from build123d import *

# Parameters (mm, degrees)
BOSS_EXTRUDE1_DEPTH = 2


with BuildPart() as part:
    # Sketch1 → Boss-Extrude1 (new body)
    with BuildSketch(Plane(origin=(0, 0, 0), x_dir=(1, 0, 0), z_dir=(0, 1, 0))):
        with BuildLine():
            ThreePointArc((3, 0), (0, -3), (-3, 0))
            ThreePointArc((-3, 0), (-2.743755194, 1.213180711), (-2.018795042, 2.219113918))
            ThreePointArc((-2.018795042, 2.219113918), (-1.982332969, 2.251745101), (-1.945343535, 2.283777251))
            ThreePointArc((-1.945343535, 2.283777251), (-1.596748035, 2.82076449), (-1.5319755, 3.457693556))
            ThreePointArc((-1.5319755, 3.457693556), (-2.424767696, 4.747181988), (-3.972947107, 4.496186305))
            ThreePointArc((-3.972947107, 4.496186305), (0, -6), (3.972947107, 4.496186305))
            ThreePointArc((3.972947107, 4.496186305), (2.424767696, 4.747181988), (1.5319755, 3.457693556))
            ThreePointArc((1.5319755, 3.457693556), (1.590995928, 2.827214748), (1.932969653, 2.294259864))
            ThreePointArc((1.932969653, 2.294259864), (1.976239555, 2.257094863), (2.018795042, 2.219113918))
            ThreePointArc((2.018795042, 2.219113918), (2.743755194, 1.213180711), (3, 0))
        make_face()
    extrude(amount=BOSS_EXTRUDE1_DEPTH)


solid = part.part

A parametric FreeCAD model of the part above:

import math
import FreeCAD as App
import Part
import Sketcher

V = App.Vector

doc = App.newDocument("Part")
body = doc.addObject("PartDesign::Body", "Body")

sketch1 = doc.addObject("Sketcher::SketchObject", "Sketch")
body.addObject(sketch1)
sketch1.AttachmentSupport = (doc.XZ_Plane, [""])
sketch1.MapMode = "FlatFace"
sketch1.addGeometry([
    Part.ArcOfCircle(Part.Circle(V(0, 0, 0), V(0, 0, 1), 3), math.radians(0), math.radians(180)),
    Part.ArcOfCircle(Part.Circle(V(0, 0, 0), V(0, 0, 1), 3), math.radians(180), math.radians(228)),
    Part.ArcOfCircle(Part.Circle(V(0, 0, 0), V(0, 0, 1), 3), math.radians(-132.29), math.radians(-130.42)),
    Part.ArcOfCircle(Part.Circle(V(-2.88, -3.27, 0), V(0, 0, 1), 1.36), math.radians(-8), math.radians(47)),
    Part.ArcOfCircle(Part.Circle(V(-3, -3.4, 0), V(0, 0, 1), 1.47), math.radians(-131), math.radians(-2)),
    Part.ArcOfCircle(Part.Circle(V(0, 0, 0), V(0, 0, 1), 6), math.radians(-49), math.radians(229)),
    Part.ArcOfCircle(Part.Circle(V(3, -3.4, 0), V(0, 0, 1), 1.47), math.radians(-178), math.radians(-49)),
    Part.ArcOfCircle(Part.Circle(V(2.86, -3.26, 0), V(0, 0, 1), 1.34), math.radians(134), math.radians(188)),
    Part.ArcOfCircle(Part.Circle(V(0, 0, 0), V(0, 0, 1), 3), math.radians(-49.89), math.radians(-47.71)),
    Part.ArcOfCircle(Part.Circle(V(0, 0, 0), V(0, 0, 1), 3), math.radians(-48), math.radians(0)),
], False)
sketch1.addConstraint([
    Sketcher.Constraint("Tangent", 0, 2, 1, 1),
    Sketcher.Constraint("Tangent", 1, 2, 2, 1),
    Sketcher.Constraint("Coincident", 2, 2, 3, 2),
    Sketcher.Constraint("Coincident", 3, 1, 4, 2),
    Sketcher.Constraint("Tangent", 4, 1, 5, 2),
    Sketcher.Constraint("Tangent", 5, 1, 6, 2),
    Sketcher.Constraint("Coincident", 6, 1, 7, 2),
    Sketcher.Constraint("Coincident", 7, 1, 8, 1),
    Sketcher.Constraint("Tangent", 8, 2, 9, 1),
    Sketcher.Constraint("Tangent", 9, 2, 0, 1),
    Sketcher.Constraint("Coincident", 0, 3, -1, 1),
    Sketcher.Constraint("Coincident", 2, 3, -1, 1),
    Sketcher.Constraint("Coincident", 5, 3, -1, 1),
    Sketcher.Constraint("Coincident", 8, 3, -1, 1),
    Sketcher.Constraint("Equal", 4, 6),
    Sketcher.Constraint("Symmetric", 3, 1, 6, 1, -2),
    Sketcher.Constraint("PointOnObject", 0, 2, -1),
    Sketcher.Constraint("PointOnObject", 9, 2, -1),
    Sketcher.Constraint("Horizontal", 1, 2, 8, 2),
    Sketcher.Constraint("Vertical", 4, 3, 0, 2),
    Sketcher.Constraint("Radius", 0, 3.0),
    Sketcher.Constraint("Radius", 5, 6.0),
    Sketcher.Constraint("Radius", 7, 1.339802),
    Sketcher.Constraint("Radius", 4, 1.469358),
    Sketcher.Constraint("Radius", 3, 1.362138),
    Sketcher.Constraint("DistanceY", 6, 1, 7, 3, 0.193901),
    Sketcher.Constraint("DistanceX", 3, 3, -1, 1, 2.881559),
    Sketcher.Constraint("DistanceY", 3, 3, -1, 1, 3.273181),
    Sketcher.Constraint("DistanceX", 1, 2, 2, 2, 0.073452),
])
pad1 = doc.addObject("PartDesign::Pad", "Pad")
body.addObject(pad1)
pad1.Profile = sketch1
pad1.Length = 2
pad1.Reversed = True

doc.recompute()
